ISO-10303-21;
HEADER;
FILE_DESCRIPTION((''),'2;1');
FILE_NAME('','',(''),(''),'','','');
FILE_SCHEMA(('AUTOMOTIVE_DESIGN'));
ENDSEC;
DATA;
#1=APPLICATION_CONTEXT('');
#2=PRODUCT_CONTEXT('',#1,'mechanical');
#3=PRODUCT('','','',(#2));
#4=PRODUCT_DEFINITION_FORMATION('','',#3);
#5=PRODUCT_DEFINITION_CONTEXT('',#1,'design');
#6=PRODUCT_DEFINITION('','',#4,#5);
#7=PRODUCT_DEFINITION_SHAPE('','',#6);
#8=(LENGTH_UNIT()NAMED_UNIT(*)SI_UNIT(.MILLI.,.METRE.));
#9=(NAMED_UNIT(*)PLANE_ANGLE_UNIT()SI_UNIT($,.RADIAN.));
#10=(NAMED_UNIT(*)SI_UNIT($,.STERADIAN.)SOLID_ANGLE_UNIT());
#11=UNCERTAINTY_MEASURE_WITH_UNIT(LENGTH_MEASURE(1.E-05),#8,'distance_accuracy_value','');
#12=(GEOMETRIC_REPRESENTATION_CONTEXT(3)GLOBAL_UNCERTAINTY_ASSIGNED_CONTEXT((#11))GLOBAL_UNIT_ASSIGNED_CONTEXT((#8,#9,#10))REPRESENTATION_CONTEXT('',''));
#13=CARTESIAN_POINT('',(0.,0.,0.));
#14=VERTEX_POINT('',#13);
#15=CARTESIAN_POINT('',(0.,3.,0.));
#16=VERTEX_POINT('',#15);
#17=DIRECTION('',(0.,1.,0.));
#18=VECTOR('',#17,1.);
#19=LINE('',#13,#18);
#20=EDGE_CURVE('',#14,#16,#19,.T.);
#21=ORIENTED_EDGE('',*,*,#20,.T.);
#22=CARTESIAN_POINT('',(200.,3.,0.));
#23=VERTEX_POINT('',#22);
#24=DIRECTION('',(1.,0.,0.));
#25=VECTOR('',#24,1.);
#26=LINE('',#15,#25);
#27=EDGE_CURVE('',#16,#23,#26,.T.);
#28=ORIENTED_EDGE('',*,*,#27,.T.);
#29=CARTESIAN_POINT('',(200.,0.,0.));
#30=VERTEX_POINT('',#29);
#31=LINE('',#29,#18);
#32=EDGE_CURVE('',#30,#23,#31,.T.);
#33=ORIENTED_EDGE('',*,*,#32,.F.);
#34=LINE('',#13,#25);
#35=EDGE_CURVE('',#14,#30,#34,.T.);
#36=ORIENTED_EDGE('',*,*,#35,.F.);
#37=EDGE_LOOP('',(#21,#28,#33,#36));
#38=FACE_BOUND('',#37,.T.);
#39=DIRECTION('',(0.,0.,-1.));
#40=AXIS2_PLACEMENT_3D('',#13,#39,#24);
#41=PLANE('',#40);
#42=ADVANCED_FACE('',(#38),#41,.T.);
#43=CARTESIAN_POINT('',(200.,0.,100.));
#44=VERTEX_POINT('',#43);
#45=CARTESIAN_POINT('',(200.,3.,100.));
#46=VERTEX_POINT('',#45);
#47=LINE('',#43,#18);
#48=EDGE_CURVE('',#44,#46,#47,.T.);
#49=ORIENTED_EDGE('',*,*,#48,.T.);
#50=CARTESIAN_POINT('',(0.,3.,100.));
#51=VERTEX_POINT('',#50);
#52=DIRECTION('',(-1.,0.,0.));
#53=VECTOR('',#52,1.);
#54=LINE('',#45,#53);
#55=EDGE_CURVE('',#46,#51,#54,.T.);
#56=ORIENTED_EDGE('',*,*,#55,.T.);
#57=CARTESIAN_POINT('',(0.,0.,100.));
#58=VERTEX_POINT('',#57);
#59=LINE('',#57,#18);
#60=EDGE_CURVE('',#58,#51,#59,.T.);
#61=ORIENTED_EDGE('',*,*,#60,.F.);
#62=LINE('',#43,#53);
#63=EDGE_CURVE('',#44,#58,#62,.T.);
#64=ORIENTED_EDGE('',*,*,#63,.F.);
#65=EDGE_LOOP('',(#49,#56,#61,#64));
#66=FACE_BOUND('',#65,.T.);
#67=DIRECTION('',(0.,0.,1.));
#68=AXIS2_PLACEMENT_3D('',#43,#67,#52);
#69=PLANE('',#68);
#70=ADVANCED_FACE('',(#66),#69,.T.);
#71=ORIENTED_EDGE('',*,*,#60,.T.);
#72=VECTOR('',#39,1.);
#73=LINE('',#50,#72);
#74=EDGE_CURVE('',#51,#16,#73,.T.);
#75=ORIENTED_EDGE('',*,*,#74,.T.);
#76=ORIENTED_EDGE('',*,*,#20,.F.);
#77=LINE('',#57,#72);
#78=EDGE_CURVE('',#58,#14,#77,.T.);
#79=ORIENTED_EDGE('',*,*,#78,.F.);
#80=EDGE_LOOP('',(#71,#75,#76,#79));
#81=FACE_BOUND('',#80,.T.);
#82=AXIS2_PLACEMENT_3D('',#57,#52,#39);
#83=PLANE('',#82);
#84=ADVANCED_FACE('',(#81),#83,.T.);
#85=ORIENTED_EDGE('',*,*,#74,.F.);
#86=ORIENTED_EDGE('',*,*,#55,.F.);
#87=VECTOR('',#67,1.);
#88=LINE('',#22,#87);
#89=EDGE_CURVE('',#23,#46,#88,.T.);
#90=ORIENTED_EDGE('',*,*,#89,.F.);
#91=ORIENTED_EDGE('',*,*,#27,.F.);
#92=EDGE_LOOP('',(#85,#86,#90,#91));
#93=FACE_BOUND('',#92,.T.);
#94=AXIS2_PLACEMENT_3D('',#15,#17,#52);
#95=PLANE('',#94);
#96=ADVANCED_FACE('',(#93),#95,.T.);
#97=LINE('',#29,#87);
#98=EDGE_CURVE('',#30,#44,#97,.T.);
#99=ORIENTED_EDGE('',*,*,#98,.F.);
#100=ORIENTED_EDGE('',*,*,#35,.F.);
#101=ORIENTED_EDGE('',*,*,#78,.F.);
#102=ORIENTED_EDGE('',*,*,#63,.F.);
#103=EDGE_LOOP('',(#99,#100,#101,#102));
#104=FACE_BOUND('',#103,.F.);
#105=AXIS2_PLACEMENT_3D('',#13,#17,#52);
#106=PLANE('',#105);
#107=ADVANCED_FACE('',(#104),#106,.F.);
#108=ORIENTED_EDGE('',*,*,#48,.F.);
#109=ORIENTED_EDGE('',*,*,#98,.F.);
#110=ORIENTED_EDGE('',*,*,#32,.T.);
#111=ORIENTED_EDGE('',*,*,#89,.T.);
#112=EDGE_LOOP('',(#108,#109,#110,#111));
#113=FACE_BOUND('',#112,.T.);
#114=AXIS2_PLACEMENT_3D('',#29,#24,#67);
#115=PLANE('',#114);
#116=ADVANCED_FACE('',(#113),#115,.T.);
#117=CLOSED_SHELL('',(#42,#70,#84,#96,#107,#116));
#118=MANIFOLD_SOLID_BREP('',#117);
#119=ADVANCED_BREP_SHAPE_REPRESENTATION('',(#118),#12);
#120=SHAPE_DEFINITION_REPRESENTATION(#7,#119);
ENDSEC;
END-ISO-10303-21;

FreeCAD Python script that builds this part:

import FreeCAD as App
import Part
import Sketcher

V = App.Vector
Q = App.Units.Quantity

doc = App.newDocument("Part")
body = doc.addObject("PartDesign::Body", "Body")

# Sketch on XZ plane
sketch1 = body.newObject("Sketcher::SketchObject", "Sketch")
sketch1.AttachmentSupport = (doc.getObject("XZ_Plane"), [""])
sketch1.MapMode = "FlatFace"
sketch1.addGeometry([
    Part.LineSegment(V(200, 0, 0), V(0, 0, 0)),
    Part.LineSegment(V(0, 0, 0), V(0, 100, 0)),
    Part.LineSegment(V(0, 100, 0), V(200, 100, 0)),
    Part.LineSegment(V(200, 100, 0), V(200, 0, 0)),
], False)
sketch1.addConstraint([
    Sketcher.Constraint("Coincident", 0, 2, 1, 1),
    Sketcher.Constraint("Coincident", 1, 2, 2, 1),
    Sketcher.Constraint("Coincident", 2, 2, 3, 1),
    Sketcher.Constraint("Coincident", 3, 2, 0, 1),
    Sketcher.Constraint("Horizontal", 0),
    Sketcher.Constraint("Vertical", 1),
    Sketcher.Constraint("Horizontal", 2),
    Sketcher.Constraint("Vertical", 3),
    Sketcher.Constraint("Coincident", 0, 2, -1, 1),
    Sketcher.Constraint("DistanceX", 0, 2, 0, 1, Q("200 mm")),
    Sketcher.Constraint("DistanceY", 1, 1, 1, 2, Q("100 mm")),
])
pad1 = body.newObject("PartDesign::Pad", "Pad")
pad1.Profile = sketch1
pad1.Length = 3
pad1.Reversed = True

doc.recompute()
